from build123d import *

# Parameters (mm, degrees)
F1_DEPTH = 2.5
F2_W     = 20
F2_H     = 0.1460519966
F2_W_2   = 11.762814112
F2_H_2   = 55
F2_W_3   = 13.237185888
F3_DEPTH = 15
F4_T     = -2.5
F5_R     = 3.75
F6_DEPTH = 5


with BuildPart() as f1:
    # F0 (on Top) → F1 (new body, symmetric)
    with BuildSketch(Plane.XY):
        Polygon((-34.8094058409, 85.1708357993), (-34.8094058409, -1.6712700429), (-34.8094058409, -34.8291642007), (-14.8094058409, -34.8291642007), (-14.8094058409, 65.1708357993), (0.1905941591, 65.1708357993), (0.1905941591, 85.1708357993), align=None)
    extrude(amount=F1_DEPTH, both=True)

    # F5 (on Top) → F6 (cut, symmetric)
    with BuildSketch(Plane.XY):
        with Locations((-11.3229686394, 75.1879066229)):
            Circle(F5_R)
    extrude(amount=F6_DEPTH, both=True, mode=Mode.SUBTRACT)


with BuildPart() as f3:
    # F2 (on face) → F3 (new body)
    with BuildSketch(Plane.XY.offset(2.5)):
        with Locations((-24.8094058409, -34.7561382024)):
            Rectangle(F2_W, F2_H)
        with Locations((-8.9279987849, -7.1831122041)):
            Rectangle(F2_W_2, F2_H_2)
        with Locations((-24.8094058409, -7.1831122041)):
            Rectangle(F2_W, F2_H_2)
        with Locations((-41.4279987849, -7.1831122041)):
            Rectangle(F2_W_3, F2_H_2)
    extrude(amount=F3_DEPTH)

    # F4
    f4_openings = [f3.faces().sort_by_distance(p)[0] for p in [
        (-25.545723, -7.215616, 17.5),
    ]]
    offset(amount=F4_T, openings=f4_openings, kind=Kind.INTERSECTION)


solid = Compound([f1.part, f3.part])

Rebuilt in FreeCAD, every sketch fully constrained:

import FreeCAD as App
import Part
import Sketcher

V = App.Vector
Q = App.Units.Quantity


def faces_at(feature, points):
    """Names of the faces that lie closest to the given points."""
    faces = feature.Shape.Faces
    near = lambda p: min(range(len(faces)), key=lambda i: faces[i].distToShape(Part.Vertex(*p))[0])
    return sorted({f"Face{near(p) + 1}" for p in points})


def add_polygon(sketch, points):
    """Adds a closed chain of lines whose ends are joined by coincident constraints."""
    first, n = sketch.GeometryCount, len(points)
    for a, b in zip(points, points[1:] + points[:1]):
        sketch.addGeometry(Part.LineSegment(App.Vector(*a, 0), App.Vector(*b, 0)), False)
    for i in range(n):
        sketch.addConstraint(Sketcher.Constraint("Coincident", first + i, 2, first + (i + 1) % n, 1))

doc = App.newDocument("Part")
body = doc.addObject("PartDesign::Body", "Body")

sketch1 = doc.addObject("Sketcher::SketchObject", "Sketch")
body.addObject(sketch1)
sketch1.AttachmentSupport = (doc.XY_Plane, [""])
sketch1.MapMode = "FlatFace"
add_polygon(sketch1, [(-35, 85), (-35, -35), (-15, -35), (-15, 65), (0, 65), (0, 85)])
sketch1.addConstraint(Sketcher.Constraint("Vertical", 0))
sketch1.addConstraint(Sketcher.Constraint("Horizontal", 1))
sketch1.addConstraint(Sketcher.Constraint("Vertical", 2))
sketch1.addConstraint(Sketcher.Constraint("Horizontal", 3))
sketch1.addConstraint(Sketcher.Constraint("Vertical", 4))
sketch1.addConstraint(Sketcher.Constraint("Horizontal", 5))
sketch1.addConstraint(Sketcher.Constraint("Equal", 1, 4))
sketch1.addConstraint(Sketcher.Constraint("DistanceX", 1, 1, 1, 2, Q("20 mm")))
sketch1.addConstraint(Sketcher.Constraint("DistanceX", 3, 1, 3, 2, Q("15 mm")))
sketch1.addConstraint(Sketcher.Constraint("DistanceY", 0, 2, 0, 1, Q("120 mm")))
sketch1.addConstraint(Sketcher.Constraint("DistanceX", 0, 2, -1, 1, Q("34.809406 mm")))
sketch1.addConstraint(Sketcher.Constraint("DistanceY", 0, 2, -1, 1, Q("34.829164 mm")))
pad1 = doc.addObject("PartDesign::Pad", "Pad")
body.addObject(pad1)
pad1.Profile = sketch1
pad1.Length = 5
pad1.Midplane = True

sketch2 = doc.addObject("Sketcher::SketchObject", "Sketch001")
body.addObject(sketch2)
sketch2.AttachmentSupport = (doc.XY_Plane, [""])
sketch2.MapMode = "FlatFace"
sketch2.addGeometry(Part.Circle(V(-11.3, 75.2, 0), V(0, 0, 1), 3.8), False)
sketch2.addConstraint(Sketcher.Constraint("Diameter", 0, Q("7.5 mm")))
sketch2.addConstraint(Sketcher.Constraint("DistanceX", 0, 3, -1, 1, Q("11.322969 mm")))
sketch2.addConstraint(Sketcher.Constraint("DistanceY", -1, 1, 0, 3, Q("75.187907 mm")))
pocket1 = doc.addObject("PartDesign::Pocket", "Pocket")
body.addObject(pocket1)
pocket1.Profile = sketch2
pocket1.Length = 10
pocket1.Midplane = True
body2 = doc.addObject("PartDesign::Body", "Body001")

sketch3 = doc.addObject("Sketcher::SketchObject", "Sketch002")
body2.addObject(sketch3)
sketch3.AttachmentSupport = (doc.getObject("XY_Plane001"), [""])
sketch3.MapMode = "FlatFace"
sketch3.AttachmentOffset = App.Placement(V(0, 0, 2.5), App.Rotation())
add_polygon(sketch3, [(-34.81, -34.83), (-14.81, -34.83), (-14.81, -34.68), (-3.05, -34.68), (-3.05, 20.32), (-48.05, 20.32), (-48.05, -34.68), (-34.81, -34.68)])
sketch3.addConstraint(Sketcher.Constraint("Horizontal", 0))
sketch3.addConstraint(Sketcher.Constraint("Vertical", 1))
sketch3.addConstraint(Sketcher.Constraint("Horizontal", 2))
sketch3.addConstraint(Sketcher.Constraint("Vertical", 3))
sketch3.addConstraint(Sketcher.Constraint("Horizontal", 4))
sketch3.addConstraint(Sketcher.Constraint("Vertical", 5))
sketch3.addConstraint(Sketcher.Constraint("Horizontal", 6))
sketch3.addConstraint(Sketcher.Constraint("Vertical", 7))
sketch3.addConstraint(Sketcher.Constraint("Horizontal", 2, 2, 5, 2))
sketch3.addConstraint(Sketcher.Constraint("DistanceX", 0, 1, 0, 2, Q("20 mm")))
sketch3.addConstraint(Sketcher.Constraint("DistanceX", 4, 2, 4, 1, Q("45 mm")))
sketch3.addConstraint(Sketcher.Constraint("DistanceY", 3, 1, 3, 2, Q("55 mm")))
sketch3.addConstraint(Sketcher.Constraint("DistanceY", 1, 1, 1, 2, Q("0.146052 mm")))
sketch3.addConstraint(Sketcher.Constraint("DistanceX", 2, 1, 2, 2, Q("11.762814 mm")))
sketch3.addConstraint(Sketcher.Constraint("DistanceX", 2, 2, -1, 1, Q("3.046592 mm")))
sketch3.addConstraint(Sketcher.Constraint("DistanceY", 0, 2, -1, 1, Q("34.829164 mm")))
pad2 = doc.addObject("PartDesign::Pad", "Pad001")
body2.addObject(pad2)
pad2.Profile = sketch3
pad2.Length = 15
doc.recompute()

thickness = doc.addObject("PartDesign::Thickness", "Thickness")
body2.addObject(thickness)
thickness.Base = (pad2, faces_at(pad2, [(-25.547, -7.256, 17.5)]))
thickness.Value = 2.5
thickness.Reversed = True
thickness.Join = "Intersection"

doc.recompute()
